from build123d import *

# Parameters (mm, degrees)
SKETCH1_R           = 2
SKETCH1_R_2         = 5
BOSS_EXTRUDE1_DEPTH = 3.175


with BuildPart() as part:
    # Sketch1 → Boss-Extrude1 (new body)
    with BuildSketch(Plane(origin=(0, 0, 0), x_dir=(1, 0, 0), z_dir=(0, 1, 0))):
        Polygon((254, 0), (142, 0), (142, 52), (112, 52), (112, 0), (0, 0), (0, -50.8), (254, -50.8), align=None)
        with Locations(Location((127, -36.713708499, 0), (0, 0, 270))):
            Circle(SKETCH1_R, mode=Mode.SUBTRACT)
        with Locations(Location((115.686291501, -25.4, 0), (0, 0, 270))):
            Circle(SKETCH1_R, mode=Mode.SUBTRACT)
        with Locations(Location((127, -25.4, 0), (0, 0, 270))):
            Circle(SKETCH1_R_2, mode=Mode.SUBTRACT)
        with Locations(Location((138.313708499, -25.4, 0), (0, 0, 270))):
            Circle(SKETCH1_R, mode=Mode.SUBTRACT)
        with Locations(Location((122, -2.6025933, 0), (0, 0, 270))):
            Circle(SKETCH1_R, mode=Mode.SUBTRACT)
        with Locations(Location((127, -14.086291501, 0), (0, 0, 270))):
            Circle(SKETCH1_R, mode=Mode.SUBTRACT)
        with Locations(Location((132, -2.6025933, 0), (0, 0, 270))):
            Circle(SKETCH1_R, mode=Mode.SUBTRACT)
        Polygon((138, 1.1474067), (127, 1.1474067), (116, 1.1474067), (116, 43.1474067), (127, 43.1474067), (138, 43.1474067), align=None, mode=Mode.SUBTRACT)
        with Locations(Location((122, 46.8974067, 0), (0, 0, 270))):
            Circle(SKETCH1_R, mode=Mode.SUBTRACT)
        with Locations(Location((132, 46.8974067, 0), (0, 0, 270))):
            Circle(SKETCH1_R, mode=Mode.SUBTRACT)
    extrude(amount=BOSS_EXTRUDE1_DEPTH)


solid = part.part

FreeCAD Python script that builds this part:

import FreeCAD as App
import Part
import Sketcher


def add_polygon(sketch, points):
    """Adds a closed chain of lines whose ends are joined by coincident constraints."""
    first, n = sketch.GeometryCount, len(points)
    for a, b in zip(points, points[1:] + points[:1]):
        sketch.addGeometry(Part.LineSegment(App.Vector(*a, 0), App.Vector(*b, 0)), False)
    for i in range(n):
        sketch.addConstraint(Sketcher.Constraint("Coincident", first + i, 2, first + (i + 1) % n, 1))

doc = App.newDocument("Part")
body = doc.addObject("PartDesign::Body", "Body")

# Sketch on XZ plane
sketch1 = doc.addObject("Sketcher::SketchObject", "Sketch")
body.addObject(sketch1)
sketch1.AttachmentSupport = (doc.XZ_Plane, [""])
sketch1.MapMode = "FlatFace"
add_polygon(sketch1, [(254, 0), (142, 0), (142, -52), (112, -52), (112, 0), (0, 0), (0, 50.8), (254, 50.8)])  # lines 0-7
sketch1.addGeometry(Part.Circle(App.Vector(115.7, 25.4, 0), App.Vector(0, 0, 1), 2), False)  # 8
sketch1.addGeometry(Part.Circle(App.Vector(122, 2.6, 0), App.Vector(0, 0, 1), 2), False)  # 9
sketch1.addGeometry(Part.Circle(App.Vector(127, 36.7, 0), App.Vector(0, 0, 1), 2), False)  # 10
sketch1.addGeometry(Part.Circle(App.Vector(127, 25.4, 0), App.Vector(0, 0, 1), 5), False)  # 11
sketch1.addGeometry(Part.Circle(App.Vector(138.3, 25.4, 0), App.Vector(0, 0, 1), 2), False)  # 12
sketch1.addGeometry(Part.Circle(App.Vector(127, 14.1, 0), App.Vector(0, 0, 1), 2), False)  # 13
sketch1.addGeometry(Part.Circle(App.Vector(132, 2.6, 0), App.Vector(0, 0, 1), 2), False)  # 14
sketch1.addGeometry(Part.Circle(App.Vector(122, -46.9, 0), App.Vector(0, 0, 1), 2), False)  # 15
add_polygon(sketch1, [(138, -43.1), (138, -1.1), (116, -1.1), (116, -43.1)])  # lines 16-19
sketch1.addGeometry(Part.Circle(App.Vector(132, -46.9, 0), App.Vector(0, 0, 1), 2), False)  # 20
sketch1.addConstraint([
    Sketcher.Constraint("Horizontal", 0),
    Sketcher.Constraint("Vertical", 1),
    Sketcher.Constraint("Horizontal", 2),
    Sketcher.Constraint("Vertical", 3),
    Sketcher.Constraint("Horizontal", 4),
    Sketcher.Constraint("Vertical", 5),
    Sketcher.Constraint("Horizontal", 6),
    Sketcher.Constraint("Vertical", 7),
    Sketcher.Constraint("Vertical", 16),
    Sketcher.Constraint("Horizontal", 17),
    Sketcher.Constraint("Vertical", 18),
    Sketcher.Constraint("Horizontal", 19),
    Sketcher.Constraint("Coincident", 4, 2, -1, 1),
    Sketcher.Constraint("Equal", 8, 9),
    Sketcher.Constraint("Equal", 9, 10),
    Sketcher.Constraint("Equal", 10, 12),
    Sketcher.Constraint("Equal", 12, 13),
    Sketcher.Constraint("Equal", 13, 14),
    Sketcher.Constraint("Equal", 14, 15),
    Sketcher.Constraint("Equal", 15, 20),
    Sketcher.Constraint("PointOnObject", 0, 2, -1),
    Sketcher.Constraint("Horizontal", 8, 3, 11, 3),
    Sketcher.Constraint("Horizontal", 11, 3, 12, 3),
    Sketcher.Constraint("Horizontal", 9, 3, 14, 3),
    Sketcher.Constraint("Horizontal", 15, 3, 20, 3),
    Sketcher.Constraint("Vertical", 10, 3, 11, 3),
    Sketcher.Constraint("Vertical", 11, 3, 13, 3),
    Sketcher.Constraint("Vertical", 9, 3, 15, 3),
    Sketcher.Constraint("Vertical", 14, 3, 20, 3),
    Sketcher.Constraint("Equal", 0, 4),
    Sketcher.Constraint("Diameter", 8, 4.0),
    Sketcher.Constraint("Diameter", 11, 10.0),
    Sketcher.Constraint("DistanceX", 0, 2, 0, 1, 112.0),
    Sketcher.Constraint("DistanceX", 2, 2, 2, 1, 30.0),
    Sketcher.Constraint("DistanceX", 17, 2, 17, 1, 22.0),
    Sketcher.Constraint("DistanceY", 1, 2, 1, 1, 52.0),
    Sketcher.Constraint("DistanceY", 16, 1, 16, 2, 42.0),
    Sketcher.Constraint("DistanceY", 5, 1, 5, 2, 50.8),
    Sketcher.Constraint("DistanceX", -1, 1, 9, 3, 122.0),
    Sketcher.Constraint("DistanceX", -1, 1, 10, 3, 127.0),
    Sketcher.Constraint("DistanceX", -1, 1, 14, 3, 132.0),
    Sketcher.Constraint("DistanceX", -1, 1, 16, 2, 138.0),
    Sketcher.Constraint("DistanceY", -1, 1, 8, 3, 25.4),
    Sketcher.Constraint("DistanceY", 15, 3, 9, 3, 49.5),
    Sketcher.Constraint("DistanceY", 16, 2, 14, 3, 3.75),
    Sketcher.Constraint("DistanceY", 9, 3, 13, 3, 11.483698),
    Sketcher.Constraint("DistanceX", -1, 1, 8, 3, 115.686292),
    Sketcher.Constraint("DistanceY", -1, 1, 10, 3, 36.713708),
    Sketcher.Constraint("DistanceX", -1, 1, 12, 3, 138.313708),
    Sketcher.Constraint("DistanceY", -1, 1, 13, 3, 14.086292),
])
pad1 = doc.addObject("PartDesign::Pad", "Pad")
body.addObject(pad1)
pad1.Profile = sketch1
pad1.Length = 3.175
pad1.Reversed = True

doc.recompute()
